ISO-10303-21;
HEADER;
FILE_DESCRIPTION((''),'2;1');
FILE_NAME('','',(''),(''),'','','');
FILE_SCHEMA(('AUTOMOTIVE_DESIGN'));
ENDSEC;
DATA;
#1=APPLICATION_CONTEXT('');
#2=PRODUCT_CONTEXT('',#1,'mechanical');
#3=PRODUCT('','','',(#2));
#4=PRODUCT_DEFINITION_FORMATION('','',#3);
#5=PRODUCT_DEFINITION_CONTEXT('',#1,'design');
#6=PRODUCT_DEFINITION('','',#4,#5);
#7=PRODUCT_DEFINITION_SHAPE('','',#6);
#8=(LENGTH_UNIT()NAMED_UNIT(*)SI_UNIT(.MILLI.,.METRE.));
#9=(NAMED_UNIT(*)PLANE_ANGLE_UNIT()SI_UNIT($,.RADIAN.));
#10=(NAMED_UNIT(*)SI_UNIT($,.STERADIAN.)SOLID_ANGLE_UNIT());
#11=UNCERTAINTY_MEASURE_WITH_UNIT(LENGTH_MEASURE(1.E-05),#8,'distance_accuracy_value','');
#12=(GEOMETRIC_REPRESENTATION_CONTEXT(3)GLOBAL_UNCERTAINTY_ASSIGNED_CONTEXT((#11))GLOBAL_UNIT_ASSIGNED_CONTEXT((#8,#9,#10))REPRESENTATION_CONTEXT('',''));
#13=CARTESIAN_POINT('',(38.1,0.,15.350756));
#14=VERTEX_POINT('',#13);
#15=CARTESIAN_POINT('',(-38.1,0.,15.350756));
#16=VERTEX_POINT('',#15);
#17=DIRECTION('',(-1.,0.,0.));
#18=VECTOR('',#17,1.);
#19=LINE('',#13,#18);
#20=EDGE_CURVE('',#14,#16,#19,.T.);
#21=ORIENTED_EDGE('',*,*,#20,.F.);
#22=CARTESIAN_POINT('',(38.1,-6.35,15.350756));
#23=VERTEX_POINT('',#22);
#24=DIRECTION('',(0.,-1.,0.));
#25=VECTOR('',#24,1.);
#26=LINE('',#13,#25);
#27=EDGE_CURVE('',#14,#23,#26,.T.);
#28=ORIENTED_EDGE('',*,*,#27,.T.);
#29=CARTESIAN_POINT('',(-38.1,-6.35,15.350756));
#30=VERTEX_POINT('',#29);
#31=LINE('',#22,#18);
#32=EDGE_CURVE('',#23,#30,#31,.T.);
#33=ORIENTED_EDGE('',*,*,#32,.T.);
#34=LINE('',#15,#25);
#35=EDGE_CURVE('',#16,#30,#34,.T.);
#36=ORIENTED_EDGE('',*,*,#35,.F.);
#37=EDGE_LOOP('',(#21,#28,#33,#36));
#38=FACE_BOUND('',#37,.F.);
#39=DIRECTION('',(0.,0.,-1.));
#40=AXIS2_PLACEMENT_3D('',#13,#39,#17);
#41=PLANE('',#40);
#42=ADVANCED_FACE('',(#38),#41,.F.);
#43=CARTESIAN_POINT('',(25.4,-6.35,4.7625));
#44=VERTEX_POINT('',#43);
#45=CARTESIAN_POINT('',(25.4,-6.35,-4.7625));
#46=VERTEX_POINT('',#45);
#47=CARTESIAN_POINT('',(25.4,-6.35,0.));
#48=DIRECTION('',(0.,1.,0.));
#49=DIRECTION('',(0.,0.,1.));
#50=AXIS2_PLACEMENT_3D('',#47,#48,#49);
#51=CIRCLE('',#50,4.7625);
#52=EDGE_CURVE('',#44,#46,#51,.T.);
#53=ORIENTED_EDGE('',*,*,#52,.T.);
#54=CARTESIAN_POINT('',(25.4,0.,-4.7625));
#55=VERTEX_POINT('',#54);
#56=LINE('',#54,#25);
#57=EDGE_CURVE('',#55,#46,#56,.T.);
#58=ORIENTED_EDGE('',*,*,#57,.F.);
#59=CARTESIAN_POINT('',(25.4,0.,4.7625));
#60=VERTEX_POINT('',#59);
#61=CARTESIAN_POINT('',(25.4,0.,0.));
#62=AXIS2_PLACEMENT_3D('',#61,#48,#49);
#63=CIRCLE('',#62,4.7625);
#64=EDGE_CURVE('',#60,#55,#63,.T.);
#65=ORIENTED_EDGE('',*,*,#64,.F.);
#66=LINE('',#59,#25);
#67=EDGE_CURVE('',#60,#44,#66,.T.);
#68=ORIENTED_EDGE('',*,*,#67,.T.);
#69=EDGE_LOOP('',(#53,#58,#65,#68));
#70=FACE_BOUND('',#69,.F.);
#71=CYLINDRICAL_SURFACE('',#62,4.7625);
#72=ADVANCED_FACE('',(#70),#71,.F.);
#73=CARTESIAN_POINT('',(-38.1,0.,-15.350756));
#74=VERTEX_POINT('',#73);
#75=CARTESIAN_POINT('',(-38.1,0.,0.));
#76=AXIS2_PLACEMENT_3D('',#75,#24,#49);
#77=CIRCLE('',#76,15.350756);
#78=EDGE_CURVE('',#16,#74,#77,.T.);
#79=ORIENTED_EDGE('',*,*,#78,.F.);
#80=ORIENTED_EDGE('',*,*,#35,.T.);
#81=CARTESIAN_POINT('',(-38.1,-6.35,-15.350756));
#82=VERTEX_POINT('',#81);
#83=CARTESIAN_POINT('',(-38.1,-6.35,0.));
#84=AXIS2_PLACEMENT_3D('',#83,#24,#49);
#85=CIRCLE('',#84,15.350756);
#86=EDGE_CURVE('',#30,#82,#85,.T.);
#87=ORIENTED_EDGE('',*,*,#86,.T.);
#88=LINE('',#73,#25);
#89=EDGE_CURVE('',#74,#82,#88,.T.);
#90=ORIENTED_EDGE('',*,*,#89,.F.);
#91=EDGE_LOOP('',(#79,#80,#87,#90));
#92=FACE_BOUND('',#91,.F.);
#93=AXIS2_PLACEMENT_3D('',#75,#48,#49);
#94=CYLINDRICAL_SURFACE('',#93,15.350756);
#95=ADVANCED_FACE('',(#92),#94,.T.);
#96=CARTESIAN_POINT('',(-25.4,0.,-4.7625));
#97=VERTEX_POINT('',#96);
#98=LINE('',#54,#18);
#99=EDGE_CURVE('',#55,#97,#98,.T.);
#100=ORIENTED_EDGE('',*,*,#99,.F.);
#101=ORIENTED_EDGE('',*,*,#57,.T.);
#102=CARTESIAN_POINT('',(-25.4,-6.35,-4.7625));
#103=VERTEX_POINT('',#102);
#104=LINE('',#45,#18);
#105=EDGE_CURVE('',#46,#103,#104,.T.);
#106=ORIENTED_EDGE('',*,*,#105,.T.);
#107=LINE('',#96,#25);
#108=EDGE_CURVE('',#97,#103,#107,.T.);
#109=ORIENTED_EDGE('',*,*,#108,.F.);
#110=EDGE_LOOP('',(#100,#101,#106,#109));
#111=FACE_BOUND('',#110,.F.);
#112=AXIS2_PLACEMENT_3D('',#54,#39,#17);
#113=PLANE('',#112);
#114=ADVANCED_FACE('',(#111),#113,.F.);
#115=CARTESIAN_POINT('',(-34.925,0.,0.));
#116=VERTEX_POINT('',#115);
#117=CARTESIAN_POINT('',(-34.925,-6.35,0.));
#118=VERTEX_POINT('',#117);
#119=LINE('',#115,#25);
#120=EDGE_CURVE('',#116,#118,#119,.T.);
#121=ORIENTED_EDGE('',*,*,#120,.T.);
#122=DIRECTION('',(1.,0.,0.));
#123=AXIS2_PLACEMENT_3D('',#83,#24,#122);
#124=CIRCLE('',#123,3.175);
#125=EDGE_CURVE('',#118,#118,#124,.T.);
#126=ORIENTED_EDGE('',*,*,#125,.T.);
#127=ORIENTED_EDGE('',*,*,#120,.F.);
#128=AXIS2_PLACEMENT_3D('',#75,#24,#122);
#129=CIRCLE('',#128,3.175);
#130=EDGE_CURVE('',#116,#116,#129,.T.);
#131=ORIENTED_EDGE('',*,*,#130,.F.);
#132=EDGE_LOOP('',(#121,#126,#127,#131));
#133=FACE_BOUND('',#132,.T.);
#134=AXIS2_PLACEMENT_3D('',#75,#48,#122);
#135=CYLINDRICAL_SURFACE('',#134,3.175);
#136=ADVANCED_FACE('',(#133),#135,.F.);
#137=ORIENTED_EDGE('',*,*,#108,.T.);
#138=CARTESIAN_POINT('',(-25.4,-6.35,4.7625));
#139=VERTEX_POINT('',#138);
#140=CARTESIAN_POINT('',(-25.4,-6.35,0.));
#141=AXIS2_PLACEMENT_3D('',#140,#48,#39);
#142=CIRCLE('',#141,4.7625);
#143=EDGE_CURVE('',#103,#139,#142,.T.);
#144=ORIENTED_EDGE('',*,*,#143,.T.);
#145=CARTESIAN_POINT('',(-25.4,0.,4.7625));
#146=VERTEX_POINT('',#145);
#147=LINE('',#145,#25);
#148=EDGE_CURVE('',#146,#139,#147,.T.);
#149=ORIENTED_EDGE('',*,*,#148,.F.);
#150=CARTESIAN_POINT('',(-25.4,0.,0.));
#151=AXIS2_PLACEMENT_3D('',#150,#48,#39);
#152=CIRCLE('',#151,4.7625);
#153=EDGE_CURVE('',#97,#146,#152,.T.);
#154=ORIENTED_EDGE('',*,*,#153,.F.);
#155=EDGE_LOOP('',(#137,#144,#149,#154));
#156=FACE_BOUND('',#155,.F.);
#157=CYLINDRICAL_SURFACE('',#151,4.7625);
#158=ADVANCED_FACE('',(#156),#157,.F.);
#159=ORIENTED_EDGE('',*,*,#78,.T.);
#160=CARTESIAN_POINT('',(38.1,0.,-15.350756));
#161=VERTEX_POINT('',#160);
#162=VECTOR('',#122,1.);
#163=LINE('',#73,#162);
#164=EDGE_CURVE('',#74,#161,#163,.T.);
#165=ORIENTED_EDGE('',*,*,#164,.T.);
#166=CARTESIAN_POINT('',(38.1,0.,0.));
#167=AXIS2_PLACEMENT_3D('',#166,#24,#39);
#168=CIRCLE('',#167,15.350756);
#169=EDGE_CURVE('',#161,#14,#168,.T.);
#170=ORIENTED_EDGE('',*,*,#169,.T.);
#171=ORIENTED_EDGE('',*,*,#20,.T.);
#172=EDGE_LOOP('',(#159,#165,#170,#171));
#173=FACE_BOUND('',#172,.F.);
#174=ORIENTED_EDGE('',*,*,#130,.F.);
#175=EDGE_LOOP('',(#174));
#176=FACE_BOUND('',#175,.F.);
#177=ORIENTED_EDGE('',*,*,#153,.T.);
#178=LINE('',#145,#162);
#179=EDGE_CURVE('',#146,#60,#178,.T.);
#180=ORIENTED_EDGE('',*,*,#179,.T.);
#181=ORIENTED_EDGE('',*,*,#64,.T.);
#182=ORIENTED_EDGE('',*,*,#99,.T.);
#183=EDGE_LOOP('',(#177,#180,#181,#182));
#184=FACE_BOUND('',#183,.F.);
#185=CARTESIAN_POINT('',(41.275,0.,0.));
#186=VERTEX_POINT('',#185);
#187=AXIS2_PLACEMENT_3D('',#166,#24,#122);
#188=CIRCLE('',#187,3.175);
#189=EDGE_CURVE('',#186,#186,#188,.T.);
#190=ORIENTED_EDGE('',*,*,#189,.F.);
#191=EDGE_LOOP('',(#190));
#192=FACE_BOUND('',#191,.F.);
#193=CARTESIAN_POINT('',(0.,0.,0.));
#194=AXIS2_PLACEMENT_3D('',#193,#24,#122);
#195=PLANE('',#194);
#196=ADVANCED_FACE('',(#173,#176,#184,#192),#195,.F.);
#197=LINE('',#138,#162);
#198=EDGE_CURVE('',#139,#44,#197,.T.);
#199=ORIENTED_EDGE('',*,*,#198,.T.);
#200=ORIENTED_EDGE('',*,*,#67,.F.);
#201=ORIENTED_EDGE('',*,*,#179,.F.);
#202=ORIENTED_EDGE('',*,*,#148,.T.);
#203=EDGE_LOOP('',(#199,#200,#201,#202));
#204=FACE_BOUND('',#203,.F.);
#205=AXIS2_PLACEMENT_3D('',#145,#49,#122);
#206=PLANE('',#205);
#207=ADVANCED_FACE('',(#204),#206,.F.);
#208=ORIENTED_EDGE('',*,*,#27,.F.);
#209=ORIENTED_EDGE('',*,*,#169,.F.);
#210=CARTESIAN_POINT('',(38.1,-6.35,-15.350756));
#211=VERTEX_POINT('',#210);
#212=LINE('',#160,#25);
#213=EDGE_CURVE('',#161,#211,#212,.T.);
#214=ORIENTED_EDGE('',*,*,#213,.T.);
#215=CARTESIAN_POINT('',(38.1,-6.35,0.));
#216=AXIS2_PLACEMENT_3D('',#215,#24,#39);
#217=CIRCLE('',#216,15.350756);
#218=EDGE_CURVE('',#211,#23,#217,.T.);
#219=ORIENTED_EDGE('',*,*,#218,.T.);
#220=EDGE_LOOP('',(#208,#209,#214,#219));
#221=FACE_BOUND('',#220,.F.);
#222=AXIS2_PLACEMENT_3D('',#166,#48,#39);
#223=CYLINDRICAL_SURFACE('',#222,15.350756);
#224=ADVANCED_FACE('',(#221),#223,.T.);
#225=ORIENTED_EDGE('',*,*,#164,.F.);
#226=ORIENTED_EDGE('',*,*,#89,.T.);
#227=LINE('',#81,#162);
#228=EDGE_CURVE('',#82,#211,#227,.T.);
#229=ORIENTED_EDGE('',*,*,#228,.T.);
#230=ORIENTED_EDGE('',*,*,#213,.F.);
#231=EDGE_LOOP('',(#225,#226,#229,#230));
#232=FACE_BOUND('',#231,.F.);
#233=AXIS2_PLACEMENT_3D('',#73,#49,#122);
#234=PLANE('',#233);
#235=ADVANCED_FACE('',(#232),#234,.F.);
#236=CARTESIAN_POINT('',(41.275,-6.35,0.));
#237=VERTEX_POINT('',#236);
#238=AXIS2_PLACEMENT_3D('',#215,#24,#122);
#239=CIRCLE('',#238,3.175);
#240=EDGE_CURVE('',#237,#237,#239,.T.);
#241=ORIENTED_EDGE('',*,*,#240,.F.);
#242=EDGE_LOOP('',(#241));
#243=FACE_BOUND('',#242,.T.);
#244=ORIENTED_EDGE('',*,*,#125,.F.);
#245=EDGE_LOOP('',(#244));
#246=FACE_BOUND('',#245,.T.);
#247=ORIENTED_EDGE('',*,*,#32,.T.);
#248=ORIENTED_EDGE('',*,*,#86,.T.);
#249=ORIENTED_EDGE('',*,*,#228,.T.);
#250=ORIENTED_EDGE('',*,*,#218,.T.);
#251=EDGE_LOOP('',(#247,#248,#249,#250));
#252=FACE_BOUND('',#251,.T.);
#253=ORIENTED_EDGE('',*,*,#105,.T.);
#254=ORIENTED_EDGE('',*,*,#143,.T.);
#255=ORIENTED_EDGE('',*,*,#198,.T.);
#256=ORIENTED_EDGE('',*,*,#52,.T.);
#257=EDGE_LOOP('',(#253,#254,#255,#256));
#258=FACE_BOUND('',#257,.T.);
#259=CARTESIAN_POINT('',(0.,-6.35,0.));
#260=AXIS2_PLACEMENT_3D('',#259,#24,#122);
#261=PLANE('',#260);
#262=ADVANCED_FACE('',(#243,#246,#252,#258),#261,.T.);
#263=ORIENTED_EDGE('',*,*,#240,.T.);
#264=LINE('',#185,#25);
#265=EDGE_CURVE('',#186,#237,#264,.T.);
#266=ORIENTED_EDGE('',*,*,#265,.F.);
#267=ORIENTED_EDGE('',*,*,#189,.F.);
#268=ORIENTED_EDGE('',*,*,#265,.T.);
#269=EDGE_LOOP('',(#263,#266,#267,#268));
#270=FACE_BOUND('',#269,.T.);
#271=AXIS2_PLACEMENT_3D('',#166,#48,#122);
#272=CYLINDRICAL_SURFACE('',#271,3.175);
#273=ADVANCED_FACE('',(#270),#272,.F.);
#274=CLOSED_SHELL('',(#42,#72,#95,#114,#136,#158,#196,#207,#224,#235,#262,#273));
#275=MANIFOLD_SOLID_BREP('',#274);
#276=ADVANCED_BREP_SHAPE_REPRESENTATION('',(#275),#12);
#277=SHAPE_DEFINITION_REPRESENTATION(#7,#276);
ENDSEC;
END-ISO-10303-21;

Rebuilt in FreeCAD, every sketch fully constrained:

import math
import FreeCAD as App
import Part
import Sketcher

V = App.Vector
Q = App.Units.Quantity

doc = App.newDocument("Part")
body = doc.addObject("PartDesign::Body", "Body")

# Sketch on XZ plane
sketch1 = doc.addObject("Sketcher::SketchObject", "Sketch")
body.addObject(sketch1)
sketch1.AttachmentSupport = (doc.XZ_Plane, [""])
sketch1.MapMode = "FlatFace"
sketch1.addGeometry([
    Part.ArcOfCircle(Part.Circle(V(38.1, 0, 0), V(0, 0, 1), 15.4), math.radians(-90), math.radians(90)),  # 0
    Part.LineSegment(V(38.1, 15.4, 0), V(-38.1, 15.4, 0)),  # 1
    Part.ArcOfCircle(Part.Circle(V(-38.1, 0, 0), V(0, 0, 1), 15.4), math.radians(90), math.radians(270)),  # 2
    Part.LineSegment(V(-38.1, -15.4, 0), V(38.1, -15.4, 0)),  # 3
    Part.Circle(V(-38.1, 0, 0), V(0, 0, 1), 3.2),  # 4
    Part.ArcOfCircle(Part.Circle(V(-25.4, 0, 0), V(0, 0, 1), 4.8), math.radians(90), math.radians(270)),  # 5
    Part.LineSegment(V(-25.4, 4.8, 0), V(25.4, 4.8, 0)),  # 6
    Part.ArcOfCircle(Part.Circle(V(25.4, 0, 0), V(0, 0, 1), 4.8), math.radians(-90), math.radians(90)),  # 7
    Part.LineSegment(V(25.4, -4.8, 0), V(-25.4, -4.8, 0)),  # 8
    Part.Circle(V(38.1, 0, 0), V(0, 0, 1), 3.2),  # 9
], False)
sketch1.addConstraint([
    Sketcher.Constraint("Tangent", 0, 2, 1, 1),
    Sketcher.Constraint("Tangent", 1, 2, 2, 1),
    Sketcher.Constraint("Tangent", 2, 2, 3, 1),
    Sketcher.Constraint("Tangent", 3, 2, 0, 1),
    Sketcher.Constraint("Tangent", 5, 1, 6, 1),
    Sketcher.Constraint("Tangent", 6, 2, 7, 2),
    Sketcher.Constraint("Tangent", 7, 1, 8, 1),
    Sketcher.Constraint("Tangent", 8, 2, 5, 2),
    Sketcher.Constraint("Horizontal", 1),
    Sketcher.Constraint("Horizontal", 3),
    Sketcher.Constraint("Horizontal", 6),
    Sketcher.Constraint("Horizontal", 8),
    Sketcher.Constraint("Coincident", 4, 3, 2, 3),
    Sketcher.Constraint("Coincident", 9, 3, 0, 3),
    Sketcher.Constraint("Equal", 4, 9),
    Sketcher.Constraint("Symmetric", 0, 3, 2, 3, -1, 1),
    Sketcher.Constraint("Symmetric", 5, 3, 7, 3, -1, 1),
    Sketcher.Constraint("Diameter", 4, Q("0.25 in")),
    Sketcher.Constraint("DistanceX", 1, 2, 1, 1, Q("3 in")),
    Sketcher.Constraint("DistanceX", 6, 1, 6, 2, Q("2 in")),
    Sketcher.Constraint("Radius", 5, Q("0.1875 in")),
    Sketcher.Constraint("Radius", 0, Q("15.350756 mm")),
])
pad1 = doc.addObject("PartDesign::Pad", "Pad")
body.addObject(pad1)
pad1.Profile = sketch1
pad1.Length = Q("0.25 in")

doc.recompute()
